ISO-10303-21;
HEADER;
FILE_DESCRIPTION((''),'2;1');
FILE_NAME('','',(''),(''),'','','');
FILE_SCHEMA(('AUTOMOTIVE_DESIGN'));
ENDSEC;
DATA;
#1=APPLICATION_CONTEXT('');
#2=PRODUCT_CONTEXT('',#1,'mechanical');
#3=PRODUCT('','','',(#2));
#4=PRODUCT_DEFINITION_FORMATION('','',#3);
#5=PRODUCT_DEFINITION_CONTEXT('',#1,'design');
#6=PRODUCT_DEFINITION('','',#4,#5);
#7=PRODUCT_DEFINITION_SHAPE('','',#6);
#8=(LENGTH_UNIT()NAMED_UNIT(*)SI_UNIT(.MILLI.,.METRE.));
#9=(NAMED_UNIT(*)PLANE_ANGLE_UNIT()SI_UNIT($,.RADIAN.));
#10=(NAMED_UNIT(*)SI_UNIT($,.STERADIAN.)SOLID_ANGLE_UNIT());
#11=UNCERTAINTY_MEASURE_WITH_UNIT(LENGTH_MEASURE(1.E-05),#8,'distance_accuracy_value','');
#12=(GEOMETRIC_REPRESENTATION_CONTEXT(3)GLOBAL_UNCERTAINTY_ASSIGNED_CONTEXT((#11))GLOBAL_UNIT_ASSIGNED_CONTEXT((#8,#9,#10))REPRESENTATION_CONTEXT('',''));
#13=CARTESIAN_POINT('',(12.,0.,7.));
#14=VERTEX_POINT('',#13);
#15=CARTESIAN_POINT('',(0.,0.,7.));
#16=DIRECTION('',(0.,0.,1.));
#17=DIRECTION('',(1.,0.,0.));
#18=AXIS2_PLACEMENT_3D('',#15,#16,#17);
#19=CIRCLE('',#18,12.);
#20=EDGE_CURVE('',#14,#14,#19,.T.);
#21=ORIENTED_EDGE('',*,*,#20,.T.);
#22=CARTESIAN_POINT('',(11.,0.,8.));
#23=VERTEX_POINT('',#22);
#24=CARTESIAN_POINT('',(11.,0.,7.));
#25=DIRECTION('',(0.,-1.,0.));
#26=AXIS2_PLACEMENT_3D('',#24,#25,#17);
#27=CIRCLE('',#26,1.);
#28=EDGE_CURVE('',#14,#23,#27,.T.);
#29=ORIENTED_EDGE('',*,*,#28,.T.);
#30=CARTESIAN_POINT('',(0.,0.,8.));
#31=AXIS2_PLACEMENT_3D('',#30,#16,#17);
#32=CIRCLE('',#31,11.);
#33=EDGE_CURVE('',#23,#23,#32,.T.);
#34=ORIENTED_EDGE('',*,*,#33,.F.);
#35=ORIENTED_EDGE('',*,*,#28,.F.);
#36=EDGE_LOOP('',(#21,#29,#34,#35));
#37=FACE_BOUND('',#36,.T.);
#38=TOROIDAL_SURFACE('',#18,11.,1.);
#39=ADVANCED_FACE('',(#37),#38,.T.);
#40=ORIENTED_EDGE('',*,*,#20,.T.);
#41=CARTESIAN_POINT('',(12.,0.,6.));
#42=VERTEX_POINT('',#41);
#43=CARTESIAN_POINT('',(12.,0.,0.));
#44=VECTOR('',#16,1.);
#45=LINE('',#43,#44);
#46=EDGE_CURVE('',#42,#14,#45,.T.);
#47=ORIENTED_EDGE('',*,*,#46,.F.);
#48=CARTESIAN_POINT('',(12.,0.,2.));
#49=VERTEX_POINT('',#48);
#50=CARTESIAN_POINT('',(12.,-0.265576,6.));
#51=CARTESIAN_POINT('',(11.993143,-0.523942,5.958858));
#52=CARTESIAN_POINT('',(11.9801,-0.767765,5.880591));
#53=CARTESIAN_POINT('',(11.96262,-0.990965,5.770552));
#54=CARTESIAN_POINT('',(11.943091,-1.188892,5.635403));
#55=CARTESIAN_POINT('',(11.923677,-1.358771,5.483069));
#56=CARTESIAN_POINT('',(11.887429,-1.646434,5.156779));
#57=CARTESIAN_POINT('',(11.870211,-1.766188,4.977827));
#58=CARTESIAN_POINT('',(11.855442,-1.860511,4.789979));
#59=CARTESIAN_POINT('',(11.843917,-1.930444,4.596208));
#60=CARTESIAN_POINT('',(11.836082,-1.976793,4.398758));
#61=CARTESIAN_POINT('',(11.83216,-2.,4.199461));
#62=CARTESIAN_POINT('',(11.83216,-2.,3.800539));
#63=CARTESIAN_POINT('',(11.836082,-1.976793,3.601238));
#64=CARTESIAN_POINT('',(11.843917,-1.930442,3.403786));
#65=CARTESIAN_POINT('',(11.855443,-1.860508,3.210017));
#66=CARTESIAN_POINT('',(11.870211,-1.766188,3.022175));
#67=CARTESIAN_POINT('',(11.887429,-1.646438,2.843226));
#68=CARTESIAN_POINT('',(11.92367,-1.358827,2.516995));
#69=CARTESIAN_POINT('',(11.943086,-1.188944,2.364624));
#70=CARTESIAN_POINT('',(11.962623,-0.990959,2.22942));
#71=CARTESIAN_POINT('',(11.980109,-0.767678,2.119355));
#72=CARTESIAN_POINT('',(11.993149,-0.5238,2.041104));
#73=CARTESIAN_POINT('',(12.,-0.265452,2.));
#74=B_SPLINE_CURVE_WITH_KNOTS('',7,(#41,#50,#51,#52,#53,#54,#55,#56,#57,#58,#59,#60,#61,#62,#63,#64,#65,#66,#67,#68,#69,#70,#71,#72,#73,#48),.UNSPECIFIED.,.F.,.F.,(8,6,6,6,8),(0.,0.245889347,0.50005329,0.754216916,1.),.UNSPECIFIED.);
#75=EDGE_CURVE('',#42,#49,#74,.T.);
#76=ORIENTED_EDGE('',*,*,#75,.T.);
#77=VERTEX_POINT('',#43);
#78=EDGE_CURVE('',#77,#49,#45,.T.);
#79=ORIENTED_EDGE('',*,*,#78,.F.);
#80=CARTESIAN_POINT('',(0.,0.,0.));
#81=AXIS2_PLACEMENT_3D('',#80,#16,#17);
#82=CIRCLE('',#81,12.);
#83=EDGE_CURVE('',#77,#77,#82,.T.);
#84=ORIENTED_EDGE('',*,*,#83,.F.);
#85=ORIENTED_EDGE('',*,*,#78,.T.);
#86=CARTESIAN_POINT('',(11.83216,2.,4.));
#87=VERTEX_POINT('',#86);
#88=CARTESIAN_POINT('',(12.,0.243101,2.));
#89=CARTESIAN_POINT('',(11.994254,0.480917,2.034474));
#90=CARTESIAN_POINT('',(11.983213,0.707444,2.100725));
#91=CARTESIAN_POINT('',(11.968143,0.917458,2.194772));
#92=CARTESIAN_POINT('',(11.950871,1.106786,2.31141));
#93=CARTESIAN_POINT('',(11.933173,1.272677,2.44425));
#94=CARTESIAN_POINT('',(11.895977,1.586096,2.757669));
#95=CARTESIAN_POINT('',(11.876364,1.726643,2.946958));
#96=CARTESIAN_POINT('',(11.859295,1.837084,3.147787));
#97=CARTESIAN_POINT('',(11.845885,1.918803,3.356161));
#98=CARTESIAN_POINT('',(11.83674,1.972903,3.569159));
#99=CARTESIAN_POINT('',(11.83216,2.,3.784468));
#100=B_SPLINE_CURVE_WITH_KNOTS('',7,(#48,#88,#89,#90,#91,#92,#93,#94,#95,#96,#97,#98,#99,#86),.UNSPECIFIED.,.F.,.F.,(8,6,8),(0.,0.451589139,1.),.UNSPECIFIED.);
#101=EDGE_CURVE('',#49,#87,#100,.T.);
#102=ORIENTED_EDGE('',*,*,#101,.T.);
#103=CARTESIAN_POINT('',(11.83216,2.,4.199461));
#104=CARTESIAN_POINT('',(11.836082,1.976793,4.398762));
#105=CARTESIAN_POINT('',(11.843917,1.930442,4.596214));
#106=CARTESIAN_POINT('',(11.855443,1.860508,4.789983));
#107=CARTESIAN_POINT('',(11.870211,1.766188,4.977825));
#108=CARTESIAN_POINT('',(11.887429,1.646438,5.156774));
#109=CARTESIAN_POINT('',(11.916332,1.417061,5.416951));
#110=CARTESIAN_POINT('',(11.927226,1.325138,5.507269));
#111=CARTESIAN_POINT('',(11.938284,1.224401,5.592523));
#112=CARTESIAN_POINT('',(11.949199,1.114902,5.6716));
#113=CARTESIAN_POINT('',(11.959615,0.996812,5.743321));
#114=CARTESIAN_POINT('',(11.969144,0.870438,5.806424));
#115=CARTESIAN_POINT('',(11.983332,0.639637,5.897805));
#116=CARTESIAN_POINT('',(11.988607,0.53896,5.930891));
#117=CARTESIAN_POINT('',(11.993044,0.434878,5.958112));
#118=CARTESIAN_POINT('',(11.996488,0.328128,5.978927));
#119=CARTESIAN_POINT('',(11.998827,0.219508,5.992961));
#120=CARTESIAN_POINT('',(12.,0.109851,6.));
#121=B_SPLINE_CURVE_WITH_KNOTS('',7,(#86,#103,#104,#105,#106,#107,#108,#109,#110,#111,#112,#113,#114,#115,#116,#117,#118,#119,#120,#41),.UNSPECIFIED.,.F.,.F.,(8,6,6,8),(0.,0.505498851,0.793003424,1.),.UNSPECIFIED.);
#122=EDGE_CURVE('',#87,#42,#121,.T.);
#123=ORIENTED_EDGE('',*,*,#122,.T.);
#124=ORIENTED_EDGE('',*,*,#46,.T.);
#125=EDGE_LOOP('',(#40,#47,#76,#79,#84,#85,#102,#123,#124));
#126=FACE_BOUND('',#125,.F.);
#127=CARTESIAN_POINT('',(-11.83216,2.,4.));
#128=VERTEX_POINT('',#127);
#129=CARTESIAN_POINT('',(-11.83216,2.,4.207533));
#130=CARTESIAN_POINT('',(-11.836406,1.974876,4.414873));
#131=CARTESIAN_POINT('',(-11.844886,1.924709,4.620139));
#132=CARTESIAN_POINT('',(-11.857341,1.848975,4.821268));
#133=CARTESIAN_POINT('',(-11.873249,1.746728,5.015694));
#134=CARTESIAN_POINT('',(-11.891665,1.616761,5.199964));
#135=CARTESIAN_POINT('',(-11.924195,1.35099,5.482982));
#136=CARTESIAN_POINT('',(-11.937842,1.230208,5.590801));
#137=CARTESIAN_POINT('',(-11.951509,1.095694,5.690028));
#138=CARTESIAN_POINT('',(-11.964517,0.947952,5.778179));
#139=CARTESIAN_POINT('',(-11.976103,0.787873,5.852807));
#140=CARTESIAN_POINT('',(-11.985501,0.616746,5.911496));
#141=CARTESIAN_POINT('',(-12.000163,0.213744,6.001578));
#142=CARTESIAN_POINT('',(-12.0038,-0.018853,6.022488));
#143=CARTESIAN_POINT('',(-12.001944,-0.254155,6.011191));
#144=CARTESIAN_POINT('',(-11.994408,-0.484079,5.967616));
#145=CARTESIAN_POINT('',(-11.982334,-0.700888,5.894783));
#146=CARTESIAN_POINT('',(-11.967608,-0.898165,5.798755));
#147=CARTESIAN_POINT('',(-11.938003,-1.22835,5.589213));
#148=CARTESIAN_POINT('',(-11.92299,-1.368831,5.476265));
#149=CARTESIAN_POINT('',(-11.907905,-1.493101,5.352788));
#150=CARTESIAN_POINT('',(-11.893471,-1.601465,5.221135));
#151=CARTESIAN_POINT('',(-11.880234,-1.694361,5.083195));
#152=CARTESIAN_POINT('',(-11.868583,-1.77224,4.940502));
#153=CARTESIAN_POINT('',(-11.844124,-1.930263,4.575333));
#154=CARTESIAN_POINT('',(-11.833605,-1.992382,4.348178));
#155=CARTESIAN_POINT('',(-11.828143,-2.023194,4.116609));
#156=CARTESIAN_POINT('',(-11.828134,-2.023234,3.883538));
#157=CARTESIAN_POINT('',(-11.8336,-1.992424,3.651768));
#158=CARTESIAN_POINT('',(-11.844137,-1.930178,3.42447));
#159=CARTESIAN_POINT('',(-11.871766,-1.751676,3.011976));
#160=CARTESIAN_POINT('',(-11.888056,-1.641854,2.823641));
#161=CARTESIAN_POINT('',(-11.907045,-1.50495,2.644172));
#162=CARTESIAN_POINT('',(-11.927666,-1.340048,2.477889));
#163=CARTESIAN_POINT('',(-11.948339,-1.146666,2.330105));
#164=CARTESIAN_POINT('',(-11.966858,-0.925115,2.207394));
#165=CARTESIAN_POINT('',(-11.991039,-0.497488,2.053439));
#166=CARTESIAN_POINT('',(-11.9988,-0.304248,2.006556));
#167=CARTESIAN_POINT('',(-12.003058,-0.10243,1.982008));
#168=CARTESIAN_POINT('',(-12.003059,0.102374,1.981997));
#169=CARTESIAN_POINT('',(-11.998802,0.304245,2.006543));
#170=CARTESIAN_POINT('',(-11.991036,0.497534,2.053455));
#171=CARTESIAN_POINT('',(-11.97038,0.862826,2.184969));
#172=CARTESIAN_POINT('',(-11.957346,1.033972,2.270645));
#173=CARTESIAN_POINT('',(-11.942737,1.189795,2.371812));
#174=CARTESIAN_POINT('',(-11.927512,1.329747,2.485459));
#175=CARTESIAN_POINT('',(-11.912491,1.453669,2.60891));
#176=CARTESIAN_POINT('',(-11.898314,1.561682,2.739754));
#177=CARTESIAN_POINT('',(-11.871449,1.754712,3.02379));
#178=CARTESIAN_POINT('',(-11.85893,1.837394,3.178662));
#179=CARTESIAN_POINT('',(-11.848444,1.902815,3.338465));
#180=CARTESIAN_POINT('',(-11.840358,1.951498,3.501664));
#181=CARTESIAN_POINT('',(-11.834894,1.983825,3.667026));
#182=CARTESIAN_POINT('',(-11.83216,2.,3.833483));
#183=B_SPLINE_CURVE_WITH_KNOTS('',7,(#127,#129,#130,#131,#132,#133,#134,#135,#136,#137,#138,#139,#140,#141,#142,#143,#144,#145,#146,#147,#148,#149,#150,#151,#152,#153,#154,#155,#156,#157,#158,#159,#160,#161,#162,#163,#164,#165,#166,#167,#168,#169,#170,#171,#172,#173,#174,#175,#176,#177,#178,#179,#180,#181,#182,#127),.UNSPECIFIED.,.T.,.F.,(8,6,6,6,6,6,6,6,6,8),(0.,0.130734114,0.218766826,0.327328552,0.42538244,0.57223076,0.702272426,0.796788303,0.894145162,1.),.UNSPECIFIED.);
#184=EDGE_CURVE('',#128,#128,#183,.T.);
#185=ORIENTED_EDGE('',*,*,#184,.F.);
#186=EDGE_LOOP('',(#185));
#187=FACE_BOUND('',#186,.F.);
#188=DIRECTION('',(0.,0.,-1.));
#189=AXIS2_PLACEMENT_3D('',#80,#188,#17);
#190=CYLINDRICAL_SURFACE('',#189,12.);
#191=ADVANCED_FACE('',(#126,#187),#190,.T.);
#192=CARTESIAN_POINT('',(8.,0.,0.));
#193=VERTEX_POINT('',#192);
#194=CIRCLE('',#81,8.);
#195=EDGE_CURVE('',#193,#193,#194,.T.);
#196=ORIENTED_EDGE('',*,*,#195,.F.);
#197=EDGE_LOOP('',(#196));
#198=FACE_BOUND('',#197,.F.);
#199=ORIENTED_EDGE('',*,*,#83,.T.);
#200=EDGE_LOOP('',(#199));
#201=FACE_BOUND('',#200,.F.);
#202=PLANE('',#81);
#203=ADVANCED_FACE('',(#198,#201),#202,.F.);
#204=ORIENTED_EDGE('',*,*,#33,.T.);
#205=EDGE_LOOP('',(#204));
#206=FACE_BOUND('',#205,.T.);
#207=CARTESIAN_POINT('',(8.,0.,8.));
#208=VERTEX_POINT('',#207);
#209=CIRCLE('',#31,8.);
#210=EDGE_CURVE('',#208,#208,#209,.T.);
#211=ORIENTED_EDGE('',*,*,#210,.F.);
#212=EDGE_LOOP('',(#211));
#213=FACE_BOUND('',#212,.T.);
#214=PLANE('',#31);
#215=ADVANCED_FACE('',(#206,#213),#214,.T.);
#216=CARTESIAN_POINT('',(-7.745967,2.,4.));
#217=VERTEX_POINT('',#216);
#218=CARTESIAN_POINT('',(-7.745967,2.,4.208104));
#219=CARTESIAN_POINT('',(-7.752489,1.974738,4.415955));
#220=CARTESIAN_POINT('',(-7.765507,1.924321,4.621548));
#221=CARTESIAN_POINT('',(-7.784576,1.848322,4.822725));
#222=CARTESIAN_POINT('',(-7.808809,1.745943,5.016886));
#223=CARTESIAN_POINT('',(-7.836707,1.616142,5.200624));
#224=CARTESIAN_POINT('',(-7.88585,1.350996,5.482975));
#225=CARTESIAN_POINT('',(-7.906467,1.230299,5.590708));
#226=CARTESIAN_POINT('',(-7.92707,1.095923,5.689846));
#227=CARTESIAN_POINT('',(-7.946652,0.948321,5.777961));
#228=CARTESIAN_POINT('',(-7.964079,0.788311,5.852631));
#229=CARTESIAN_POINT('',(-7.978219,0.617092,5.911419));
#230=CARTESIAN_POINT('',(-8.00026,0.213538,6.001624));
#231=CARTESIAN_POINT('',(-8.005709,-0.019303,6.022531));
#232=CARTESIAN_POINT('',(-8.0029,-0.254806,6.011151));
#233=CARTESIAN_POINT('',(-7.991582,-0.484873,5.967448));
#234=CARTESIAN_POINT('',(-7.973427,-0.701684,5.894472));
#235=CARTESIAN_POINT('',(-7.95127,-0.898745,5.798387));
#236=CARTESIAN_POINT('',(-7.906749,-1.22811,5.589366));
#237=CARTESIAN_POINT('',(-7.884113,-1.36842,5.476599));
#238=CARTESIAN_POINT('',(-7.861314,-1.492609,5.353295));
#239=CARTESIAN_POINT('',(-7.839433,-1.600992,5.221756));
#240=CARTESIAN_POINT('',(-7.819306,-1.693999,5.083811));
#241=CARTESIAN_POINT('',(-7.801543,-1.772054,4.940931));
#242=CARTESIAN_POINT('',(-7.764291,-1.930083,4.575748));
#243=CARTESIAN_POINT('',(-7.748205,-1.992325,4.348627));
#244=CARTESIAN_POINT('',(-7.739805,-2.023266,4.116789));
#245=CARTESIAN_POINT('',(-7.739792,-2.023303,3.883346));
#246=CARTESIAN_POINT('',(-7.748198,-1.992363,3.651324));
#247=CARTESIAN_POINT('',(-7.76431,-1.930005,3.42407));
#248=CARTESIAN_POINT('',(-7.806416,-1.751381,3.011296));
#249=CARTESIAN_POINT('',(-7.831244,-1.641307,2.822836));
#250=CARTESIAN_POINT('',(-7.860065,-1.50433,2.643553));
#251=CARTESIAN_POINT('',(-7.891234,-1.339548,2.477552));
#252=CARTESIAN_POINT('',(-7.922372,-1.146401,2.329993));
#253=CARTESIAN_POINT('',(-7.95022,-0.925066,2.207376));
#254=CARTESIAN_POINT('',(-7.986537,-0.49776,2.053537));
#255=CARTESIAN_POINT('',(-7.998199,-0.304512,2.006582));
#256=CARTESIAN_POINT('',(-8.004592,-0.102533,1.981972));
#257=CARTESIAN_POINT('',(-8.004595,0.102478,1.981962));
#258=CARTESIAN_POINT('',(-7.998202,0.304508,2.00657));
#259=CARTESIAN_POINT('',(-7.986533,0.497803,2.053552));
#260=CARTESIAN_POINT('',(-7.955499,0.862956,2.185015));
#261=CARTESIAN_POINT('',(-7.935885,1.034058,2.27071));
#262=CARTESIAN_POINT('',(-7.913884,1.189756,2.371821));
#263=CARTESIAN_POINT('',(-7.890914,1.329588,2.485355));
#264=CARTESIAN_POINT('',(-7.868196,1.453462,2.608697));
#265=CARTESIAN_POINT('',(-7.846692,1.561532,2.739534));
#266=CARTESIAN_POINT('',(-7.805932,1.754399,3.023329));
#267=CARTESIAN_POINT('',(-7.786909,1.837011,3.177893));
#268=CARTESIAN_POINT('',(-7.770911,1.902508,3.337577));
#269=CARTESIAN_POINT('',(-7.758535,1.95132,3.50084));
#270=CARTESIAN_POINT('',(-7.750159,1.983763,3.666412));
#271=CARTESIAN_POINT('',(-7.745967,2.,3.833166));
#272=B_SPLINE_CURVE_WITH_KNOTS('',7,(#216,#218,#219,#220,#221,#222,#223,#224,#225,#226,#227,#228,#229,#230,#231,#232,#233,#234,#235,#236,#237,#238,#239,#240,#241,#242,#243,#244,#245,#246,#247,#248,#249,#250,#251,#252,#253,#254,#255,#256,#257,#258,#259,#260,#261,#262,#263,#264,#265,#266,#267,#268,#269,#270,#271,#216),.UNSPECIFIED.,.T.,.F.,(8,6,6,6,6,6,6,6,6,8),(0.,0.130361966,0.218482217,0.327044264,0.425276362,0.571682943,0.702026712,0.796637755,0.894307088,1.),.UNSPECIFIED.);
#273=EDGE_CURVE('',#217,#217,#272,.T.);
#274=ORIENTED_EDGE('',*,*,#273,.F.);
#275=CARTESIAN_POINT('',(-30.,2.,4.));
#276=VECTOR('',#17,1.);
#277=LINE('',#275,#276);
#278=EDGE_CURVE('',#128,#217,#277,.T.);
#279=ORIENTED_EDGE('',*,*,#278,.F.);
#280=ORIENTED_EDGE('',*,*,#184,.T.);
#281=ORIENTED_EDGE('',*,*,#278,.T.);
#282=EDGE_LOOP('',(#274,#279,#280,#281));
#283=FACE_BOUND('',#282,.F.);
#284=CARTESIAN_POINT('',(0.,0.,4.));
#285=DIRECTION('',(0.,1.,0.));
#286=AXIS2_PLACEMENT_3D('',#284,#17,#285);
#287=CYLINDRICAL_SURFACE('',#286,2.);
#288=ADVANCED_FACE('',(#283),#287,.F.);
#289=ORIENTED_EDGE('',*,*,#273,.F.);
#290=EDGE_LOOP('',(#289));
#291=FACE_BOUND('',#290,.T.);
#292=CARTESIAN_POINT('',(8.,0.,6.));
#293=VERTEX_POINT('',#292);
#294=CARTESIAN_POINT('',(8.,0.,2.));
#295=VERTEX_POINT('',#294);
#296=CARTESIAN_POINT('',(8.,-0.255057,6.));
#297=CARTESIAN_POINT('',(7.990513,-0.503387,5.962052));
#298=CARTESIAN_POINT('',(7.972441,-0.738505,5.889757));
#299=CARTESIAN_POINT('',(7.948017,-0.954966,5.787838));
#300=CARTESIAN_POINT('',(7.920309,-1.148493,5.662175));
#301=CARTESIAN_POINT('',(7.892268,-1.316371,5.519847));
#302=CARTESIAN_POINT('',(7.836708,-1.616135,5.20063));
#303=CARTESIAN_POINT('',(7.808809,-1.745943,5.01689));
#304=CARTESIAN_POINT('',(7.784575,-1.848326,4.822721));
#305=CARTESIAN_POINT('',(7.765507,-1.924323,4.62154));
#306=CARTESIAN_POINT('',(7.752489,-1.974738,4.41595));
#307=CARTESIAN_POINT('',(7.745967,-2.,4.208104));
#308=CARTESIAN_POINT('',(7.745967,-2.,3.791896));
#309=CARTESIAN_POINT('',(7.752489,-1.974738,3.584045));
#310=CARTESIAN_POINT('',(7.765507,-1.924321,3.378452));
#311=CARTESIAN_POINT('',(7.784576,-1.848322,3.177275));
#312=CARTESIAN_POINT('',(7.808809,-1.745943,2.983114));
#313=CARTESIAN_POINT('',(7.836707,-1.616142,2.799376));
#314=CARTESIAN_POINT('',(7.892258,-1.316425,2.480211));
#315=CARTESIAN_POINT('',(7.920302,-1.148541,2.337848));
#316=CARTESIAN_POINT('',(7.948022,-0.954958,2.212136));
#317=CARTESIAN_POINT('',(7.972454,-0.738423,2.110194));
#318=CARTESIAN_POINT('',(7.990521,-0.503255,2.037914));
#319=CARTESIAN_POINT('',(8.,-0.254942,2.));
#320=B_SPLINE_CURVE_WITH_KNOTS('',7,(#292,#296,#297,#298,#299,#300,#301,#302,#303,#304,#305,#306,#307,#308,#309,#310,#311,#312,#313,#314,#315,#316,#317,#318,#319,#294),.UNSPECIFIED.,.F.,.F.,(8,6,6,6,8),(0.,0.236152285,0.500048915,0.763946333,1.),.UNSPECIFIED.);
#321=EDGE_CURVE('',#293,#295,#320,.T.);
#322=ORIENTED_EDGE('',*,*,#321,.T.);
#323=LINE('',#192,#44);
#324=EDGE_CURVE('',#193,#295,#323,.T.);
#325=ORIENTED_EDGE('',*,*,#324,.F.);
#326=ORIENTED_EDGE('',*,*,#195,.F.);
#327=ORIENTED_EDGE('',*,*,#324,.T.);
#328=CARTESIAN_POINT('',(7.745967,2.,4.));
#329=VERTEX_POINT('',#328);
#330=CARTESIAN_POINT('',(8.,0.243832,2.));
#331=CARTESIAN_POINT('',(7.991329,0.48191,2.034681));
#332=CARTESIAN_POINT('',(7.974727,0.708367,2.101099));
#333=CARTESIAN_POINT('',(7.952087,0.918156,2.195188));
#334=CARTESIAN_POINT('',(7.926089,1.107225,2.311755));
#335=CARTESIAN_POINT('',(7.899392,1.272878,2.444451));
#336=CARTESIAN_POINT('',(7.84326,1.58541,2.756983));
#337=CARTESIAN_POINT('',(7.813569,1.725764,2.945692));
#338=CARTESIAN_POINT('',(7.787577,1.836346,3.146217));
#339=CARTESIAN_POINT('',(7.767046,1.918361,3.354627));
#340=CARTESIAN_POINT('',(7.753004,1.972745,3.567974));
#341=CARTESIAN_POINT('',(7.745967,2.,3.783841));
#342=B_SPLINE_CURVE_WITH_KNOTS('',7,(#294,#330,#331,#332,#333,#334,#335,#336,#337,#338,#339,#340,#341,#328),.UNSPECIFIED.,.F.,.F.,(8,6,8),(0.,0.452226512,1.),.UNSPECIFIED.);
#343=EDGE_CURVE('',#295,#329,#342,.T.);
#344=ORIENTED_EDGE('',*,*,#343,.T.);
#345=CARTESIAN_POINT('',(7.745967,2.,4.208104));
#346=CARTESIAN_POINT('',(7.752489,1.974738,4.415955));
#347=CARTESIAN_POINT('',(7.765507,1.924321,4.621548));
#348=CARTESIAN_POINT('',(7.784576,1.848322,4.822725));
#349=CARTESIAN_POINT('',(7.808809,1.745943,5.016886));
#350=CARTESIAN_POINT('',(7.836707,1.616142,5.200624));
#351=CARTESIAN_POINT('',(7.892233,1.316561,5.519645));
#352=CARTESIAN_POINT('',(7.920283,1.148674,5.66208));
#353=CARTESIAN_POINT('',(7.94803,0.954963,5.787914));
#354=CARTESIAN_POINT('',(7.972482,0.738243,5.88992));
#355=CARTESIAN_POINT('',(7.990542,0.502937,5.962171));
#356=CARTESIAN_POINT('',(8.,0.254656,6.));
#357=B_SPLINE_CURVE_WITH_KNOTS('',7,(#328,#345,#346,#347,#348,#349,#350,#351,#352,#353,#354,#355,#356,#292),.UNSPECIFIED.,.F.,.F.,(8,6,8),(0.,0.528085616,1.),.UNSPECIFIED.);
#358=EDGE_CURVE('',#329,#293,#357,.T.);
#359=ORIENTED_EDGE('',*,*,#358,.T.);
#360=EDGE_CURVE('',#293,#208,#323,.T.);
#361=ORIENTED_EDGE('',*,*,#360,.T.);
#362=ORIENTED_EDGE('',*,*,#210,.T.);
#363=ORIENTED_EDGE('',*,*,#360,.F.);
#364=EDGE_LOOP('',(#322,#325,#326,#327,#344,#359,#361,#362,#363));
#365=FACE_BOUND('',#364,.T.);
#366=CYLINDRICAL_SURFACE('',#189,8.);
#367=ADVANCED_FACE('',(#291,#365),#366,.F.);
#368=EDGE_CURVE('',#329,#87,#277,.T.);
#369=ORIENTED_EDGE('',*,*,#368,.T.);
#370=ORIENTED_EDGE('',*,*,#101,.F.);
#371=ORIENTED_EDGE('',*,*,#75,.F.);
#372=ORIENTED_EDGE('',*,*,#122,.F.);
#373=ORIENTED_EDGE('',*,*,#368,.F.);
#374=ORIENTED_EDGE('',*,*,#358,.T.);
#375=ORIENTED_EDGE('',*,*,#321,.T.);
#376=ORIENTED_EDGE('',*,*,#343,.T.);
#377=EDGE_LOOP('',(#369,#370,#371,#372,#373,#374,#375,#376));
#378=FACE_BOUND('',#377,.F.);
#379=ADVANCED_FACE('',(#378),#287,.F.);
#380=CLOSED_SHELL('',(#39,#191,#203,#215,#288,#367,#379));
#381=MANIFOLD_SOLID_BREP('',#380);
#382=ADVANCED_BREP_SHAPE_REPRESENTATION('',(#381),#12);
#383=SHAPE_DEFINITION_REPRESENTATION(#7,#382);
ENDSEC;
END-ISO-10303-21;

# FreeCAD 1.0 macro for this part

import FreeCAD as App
import Part
import Sketcher

V = App.Vector
Q = App.Units.Quantity


def edges_at(feature, points):
    """Names of the edges that pass closest to the given points."""
    edges = feature.Shape.Edges
    near = lambda p: min(range(len(edges)), key=lambda i: edges[i].distToShape(Part.Vertex(*p))[0])
    return sorted({f"Edge{near(p) + 1}" for p in points})

doc = App.newDocument("Part")
body = doc.addObject("PartDesign::Body", "Body")

# Sketch on XY plane
sketch1 = doc.addObject("Sketcher::SketchObject", "Sketch")
body.addObject(sketch1)
sketch1.AttachmentSupport = (doc.XY_Plane, [""])
sketch1.MapMode = "FlatFace"
sketch1.addGeometry(Part.Circle(V(0, 0, 0), V(0, 0, 1), 12), False)
sketch1.addGeometry(Part.Circle(V(0, 0, 0), V(0, 0, 1), 8), False)
sketch1.addConstraint(Sketcher.Constraint("Coincident", 0, 3, -1, 1))
sketch1.addConstraint(Sketcher.Constraint("Coincident", 1, 3, -1, 1))
sketch1.addConstraint(Sketcher.Constraint("Diameter", 0, Q("24 mm")))
sketch1.addConstraint(Sketcher.Constraint("Diameter", 1, Q("16 mm")))
pad1 = doc.addObject("PartDesign::Pad", "Pad")
body.addObject(pad1)
pad1.Profile = sketch1
pad1.Length = 8
doc.recompute()

fillet = doc.addObject("PartDesign::Fillet", "Fillet")
body.addObject(fillet)
fillet.Base = (pad1, edges_at(pad1, [(-12, 0, 8)]))
fillet.Radius = 1

# Sketch on YZ plane
sketch2 = doc.addObject("Sketcher::SketchObject", "Sketch001")
body.addObject(sketch2)
sketch2.AttachmentSupport = (doc.YZ_Plane, [""])
sketch2.MapMode = "FlatFace"
sketch2.addGeometry(Part.Circle(V(0, 4, 0), V(0, 0, 1), 2), False)
sketch2.addConstraint(Sketcher.Constraint("PointOnObject", 0, 3, -2))
sketch2.addConstraint(Sketcher.Constraint("Diameter", 0, Q("4 mm")))
sketch2.addConstraint(Sketcher.Constraint("DistanceY", -1, 1, 0, 3, Q("4 mm")))
pocket1 = doc.addObject("PartDesign::Pocket", "Pocket")
body.addObject(pocket1)
pocket1.Profile = sketch2
pocket1.Length = 60
pocket1.Midplane = True

doc.recompute()
